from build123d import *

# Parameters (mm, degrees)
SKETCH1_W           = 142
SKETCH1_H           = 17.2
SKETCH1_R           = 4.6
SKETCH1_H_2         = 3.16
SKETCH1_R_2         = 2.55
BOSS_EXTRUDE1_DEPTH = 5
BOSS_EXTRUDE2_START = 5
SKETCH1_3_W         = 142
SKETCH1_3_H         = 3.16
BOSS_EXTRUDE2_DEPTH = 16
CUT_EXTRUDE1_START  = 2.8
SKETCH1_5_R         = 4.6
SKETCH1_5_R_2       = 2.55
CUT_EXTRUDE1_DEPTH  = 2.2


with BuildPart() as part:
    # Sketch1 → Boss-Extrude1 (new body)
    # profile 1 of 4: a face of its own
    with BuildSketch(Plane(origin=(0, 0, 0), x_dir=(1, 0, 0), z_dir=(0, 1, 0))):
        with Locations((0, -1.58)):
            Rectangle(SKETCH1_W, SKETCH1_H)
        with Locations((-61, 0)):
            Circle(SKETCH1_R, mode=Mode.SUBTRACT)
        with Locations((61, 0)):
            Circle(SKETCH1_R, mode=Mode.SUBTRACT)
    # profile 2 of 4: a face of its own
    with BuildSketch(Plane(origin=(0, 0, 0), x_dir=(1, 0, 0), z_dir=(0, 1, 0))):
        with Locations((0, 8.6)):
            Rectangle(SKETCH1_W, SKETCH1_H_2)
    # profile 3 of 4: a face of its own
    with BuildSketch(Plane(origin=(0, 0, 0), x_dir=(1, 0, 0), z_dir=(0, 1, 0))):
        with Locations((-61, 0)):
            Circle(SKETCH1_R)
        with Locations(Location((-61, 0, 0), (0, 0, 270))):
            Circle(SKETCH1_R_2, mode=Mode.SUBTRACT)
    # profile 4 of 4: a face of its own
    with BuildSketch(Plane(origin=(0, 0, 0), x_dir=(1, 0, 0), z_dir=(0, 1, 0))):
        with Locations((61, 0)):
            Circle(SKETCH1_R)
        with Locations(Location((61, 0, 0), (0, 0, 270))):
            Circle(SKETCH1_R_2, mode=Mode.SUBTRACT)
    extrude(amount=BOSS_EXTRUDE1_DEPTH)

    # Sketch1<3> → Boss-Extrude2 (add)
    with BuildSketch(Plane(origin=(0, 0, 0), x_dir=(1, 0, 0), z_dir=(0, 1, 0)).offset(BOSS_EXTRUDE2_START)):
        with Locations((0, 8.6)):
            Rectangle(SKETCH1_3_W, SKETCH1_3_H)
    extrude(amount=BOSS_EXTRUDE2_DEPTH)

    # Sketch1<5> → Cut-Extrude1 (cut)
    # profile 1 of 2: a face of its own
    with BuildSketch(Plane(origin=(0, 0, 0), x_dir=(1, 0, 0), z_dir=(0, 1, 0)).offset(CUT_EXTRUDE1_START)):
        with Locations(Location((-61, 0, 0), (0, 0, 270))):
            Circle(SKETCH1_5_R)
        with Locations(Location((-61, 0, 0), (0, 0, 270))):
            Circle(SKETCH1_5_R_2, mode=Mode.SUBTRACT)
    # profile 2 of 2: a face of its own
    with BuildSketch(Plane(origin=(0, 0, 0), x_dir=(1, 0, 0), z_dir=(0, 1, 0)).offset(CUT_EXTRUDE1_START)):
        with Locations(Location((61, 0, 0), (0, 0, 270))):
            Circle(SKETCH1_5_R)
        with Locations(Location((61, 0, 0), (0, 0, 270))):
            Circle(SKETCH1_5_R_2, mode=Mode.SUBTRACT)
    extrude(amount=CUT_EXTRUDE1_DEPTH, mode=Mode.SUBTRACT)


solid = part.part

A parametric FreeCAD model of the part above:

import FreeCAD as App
import Part
import Sketcher

doc = App.newDocument("Part")
body = doc.addObject("PartDesign::Body", "Body")

sketch1 = doc.addObject("Sketcher::SketchObject", "Sketch")
body.addObject(sketch1)
sketch1.AttachmentSupport = (doc.XZ_Plane, [""])
sketch1.MapMode = "FlatFace"
sketch1.addGeometry([
    Part.LineSegment(App.Vector(-71, 10.2, 0), App.Vector(71, 10.2, 0)),
    Part.LineSegment(App.Vector(71, 10.2, 0), App.Vector(71, -10.2, 0)),
    Part.LineSegment(App.Vector(71, -10.2, 0), App.Vector(-71, -10.2, 0)),
    Part.LineSegment(App.Vector(-71, -10.2, 0), App.Vector(-71, 10.2, 0)),
    Part.Circle(App.Vector(-61, 0, 0), App.Vector(0, 0, 1), 2.5),
    Part.Circle(App.Vector(61, 0, 0), App.Vector(0, 0, 1), 2.5),
], False)
sketch1.addConstraint([
    Sketcher.Constraint("Coincident", 0, 2, 1, 1),
    Sketcher.Constraint("Coincident", 1, 2, 2, 1),
    Sketcher.Constraint("Coincident", 2, 2, 3, 1),
    Sketcher.Constraint("Coincident", 3, 2, 0, 1),
    Sketcher.Constraint("Horizontal", 0),
    Sketcher.Constraint("Vertical", 1),
    Sketcher.Constraint("Horizontal", 2),
    Sketcher.Constraint("Vertical", 3),
    Sketcher.Constraint("Equal", 4, 5),
    Sketcher.Constraint("Symmetric", 4, 3, 5, 3, -1, 1),
    Sketcher.Constraint("Symmetric", 0, 2, 2, 2, -1, 1),
    Sketcher.Constraint("PointOnObject", 4, 3, -1),
    Sketcher.Constraint("Diameter", 4, 5.1),
    Sketcher.Constraint("DistanceX", 0, 1, 0, 2, 142.0),
    Sketcher.Constraint("DistanceX", 4, 3, -1, 1, 61.0),
    Sketcher.Constraint("DistanceY", 1, 2, 1, 1, 20.36),
])
pad1 = doc.addObject("PartDesign::Pad", "Pad")
body.addObject(pad1)
pad1.Profile = sketch1
pad1.Length = 5
pad1.Reversed = True

sketch2 = doc.addObject("Sketcher::SketchObject", "Sketch001")
body.addObject(sketch2)
sketch2.AttachmentSupport = (doc.XZ_Plane, [""])
sketch2.MapMode = "FlatFace"
sketch2.AttachmentOffset = App.Placement(App.Vector(0, 0, -5), App.Rotation())
sketch2.addGeometry([
    Part.LineSegment(App.Vector(-71, -10.2, 0), App.Vector(-71, -7, 0)),
    Part.LineSegment(App.Vector(-71, -7, 0), App.Vector(71, -7, 0)),
    Part.LineSegment(App.Vector(71, -7, 0), App.Vector(71, -10.2, 0)),
    Part.LineSegment(App.Vector(71, -10.2, 0), App.Vector(-71, -10.2, 0)),
], False)
sketch2.addConstraint([
    Sketcher.Constraint("Coincident", 0, 2, 1, 1),
    Sketcher.Constraint("Coincident", 1, 2, 2, 1),
    Sketcher.Constraint("Coincident", 2, 2, 3, 1),
    Sketcher.Constraint("Coincident", 3, 2, 0, 1),
    Sketcher.Constraint("Vertical", 0),
    Sketcher.Constraint("Horizontal", 1),
    Sketcher.Constraint("Vertical", 2),
    Sketcher.Constraint("Horizontal", 3),
    Sketcher.Constraint("DistanceX", 1, 1, 1, 2, 142.0),
    Sketcher.Constraint("DistanceX", 0, 2, -1, 1, 71.0),
    Sketcher.Constraint("DistanceY", 0, 1, 0, 2, 3.16),
    Sketcher.Constraint("DistanceY", 0, 2, -1, 1, 7.02),
])
pad2 = doc.addObject("PartDesign::Pad", "Pad001")
body.addObject(pad2)
pad2.Profile = sketch2
pad2.Length = 16
pad2.Reversed = True

sketch3 = doc.addObject("Sketcher::SketchObject", "Sketch002")
body.addObject(sketch3)
sketch3.AttachmentSupport = (doc.XZ_Plane, [""])
sketch3.MapMode = "FlatFace"
sketch3.AttachmentOffset = App.Placement(App.Vector(0, 0, -2.8), App.Rotation())
sketch3.addGeometry([
    Part.Circle(App.Vector(-61, 0, 0), App.Vector(0, 0, 1), 4.6),
    Part.Circle(App.Vector(-61, 0, 0), App.Vector(0, 0, 1), 2.5),
    Part.Circle(App.Vector(61, 0, 0), App.Vector(0, 0, 1), 4.6),
    Part.Circle(App.Vector(61, 0, 0), App.Vector(0, 0, 1), 2.5),
], False)
sketch3.addConstraint([
    Sketcher.Constraint("Coincident", 1, 3, 0, 3),
    Sketcher.Constraint("Coincident", 3, 3, 2, 3),
    Sketcher.Constraint("Equal", 0, 2),
    Sketcher.Constraint("Equal", 1, 3),
    Sketcher.Constraint("Symmetric", 0, 3, 2, 3, -1, 1),
    Sketcher.Constraint("PointOnObject", 0, 3, -1),
    Sketcher.Constraint("Diameter", 0, 9.2),
    Sketcher.Constraint("Diameter", 1, 5.1),
    Sketcher.Constraint("DistanceX", 0, 3, -1, 1, 61.0),
])
pocket1 = doc.addObject("PartDesign::Pocket", "Pocket")
body.addObject(pocket1)
pocket1.Profile = sketch3
pocket1.Length = 2.2

doc.recompute()
